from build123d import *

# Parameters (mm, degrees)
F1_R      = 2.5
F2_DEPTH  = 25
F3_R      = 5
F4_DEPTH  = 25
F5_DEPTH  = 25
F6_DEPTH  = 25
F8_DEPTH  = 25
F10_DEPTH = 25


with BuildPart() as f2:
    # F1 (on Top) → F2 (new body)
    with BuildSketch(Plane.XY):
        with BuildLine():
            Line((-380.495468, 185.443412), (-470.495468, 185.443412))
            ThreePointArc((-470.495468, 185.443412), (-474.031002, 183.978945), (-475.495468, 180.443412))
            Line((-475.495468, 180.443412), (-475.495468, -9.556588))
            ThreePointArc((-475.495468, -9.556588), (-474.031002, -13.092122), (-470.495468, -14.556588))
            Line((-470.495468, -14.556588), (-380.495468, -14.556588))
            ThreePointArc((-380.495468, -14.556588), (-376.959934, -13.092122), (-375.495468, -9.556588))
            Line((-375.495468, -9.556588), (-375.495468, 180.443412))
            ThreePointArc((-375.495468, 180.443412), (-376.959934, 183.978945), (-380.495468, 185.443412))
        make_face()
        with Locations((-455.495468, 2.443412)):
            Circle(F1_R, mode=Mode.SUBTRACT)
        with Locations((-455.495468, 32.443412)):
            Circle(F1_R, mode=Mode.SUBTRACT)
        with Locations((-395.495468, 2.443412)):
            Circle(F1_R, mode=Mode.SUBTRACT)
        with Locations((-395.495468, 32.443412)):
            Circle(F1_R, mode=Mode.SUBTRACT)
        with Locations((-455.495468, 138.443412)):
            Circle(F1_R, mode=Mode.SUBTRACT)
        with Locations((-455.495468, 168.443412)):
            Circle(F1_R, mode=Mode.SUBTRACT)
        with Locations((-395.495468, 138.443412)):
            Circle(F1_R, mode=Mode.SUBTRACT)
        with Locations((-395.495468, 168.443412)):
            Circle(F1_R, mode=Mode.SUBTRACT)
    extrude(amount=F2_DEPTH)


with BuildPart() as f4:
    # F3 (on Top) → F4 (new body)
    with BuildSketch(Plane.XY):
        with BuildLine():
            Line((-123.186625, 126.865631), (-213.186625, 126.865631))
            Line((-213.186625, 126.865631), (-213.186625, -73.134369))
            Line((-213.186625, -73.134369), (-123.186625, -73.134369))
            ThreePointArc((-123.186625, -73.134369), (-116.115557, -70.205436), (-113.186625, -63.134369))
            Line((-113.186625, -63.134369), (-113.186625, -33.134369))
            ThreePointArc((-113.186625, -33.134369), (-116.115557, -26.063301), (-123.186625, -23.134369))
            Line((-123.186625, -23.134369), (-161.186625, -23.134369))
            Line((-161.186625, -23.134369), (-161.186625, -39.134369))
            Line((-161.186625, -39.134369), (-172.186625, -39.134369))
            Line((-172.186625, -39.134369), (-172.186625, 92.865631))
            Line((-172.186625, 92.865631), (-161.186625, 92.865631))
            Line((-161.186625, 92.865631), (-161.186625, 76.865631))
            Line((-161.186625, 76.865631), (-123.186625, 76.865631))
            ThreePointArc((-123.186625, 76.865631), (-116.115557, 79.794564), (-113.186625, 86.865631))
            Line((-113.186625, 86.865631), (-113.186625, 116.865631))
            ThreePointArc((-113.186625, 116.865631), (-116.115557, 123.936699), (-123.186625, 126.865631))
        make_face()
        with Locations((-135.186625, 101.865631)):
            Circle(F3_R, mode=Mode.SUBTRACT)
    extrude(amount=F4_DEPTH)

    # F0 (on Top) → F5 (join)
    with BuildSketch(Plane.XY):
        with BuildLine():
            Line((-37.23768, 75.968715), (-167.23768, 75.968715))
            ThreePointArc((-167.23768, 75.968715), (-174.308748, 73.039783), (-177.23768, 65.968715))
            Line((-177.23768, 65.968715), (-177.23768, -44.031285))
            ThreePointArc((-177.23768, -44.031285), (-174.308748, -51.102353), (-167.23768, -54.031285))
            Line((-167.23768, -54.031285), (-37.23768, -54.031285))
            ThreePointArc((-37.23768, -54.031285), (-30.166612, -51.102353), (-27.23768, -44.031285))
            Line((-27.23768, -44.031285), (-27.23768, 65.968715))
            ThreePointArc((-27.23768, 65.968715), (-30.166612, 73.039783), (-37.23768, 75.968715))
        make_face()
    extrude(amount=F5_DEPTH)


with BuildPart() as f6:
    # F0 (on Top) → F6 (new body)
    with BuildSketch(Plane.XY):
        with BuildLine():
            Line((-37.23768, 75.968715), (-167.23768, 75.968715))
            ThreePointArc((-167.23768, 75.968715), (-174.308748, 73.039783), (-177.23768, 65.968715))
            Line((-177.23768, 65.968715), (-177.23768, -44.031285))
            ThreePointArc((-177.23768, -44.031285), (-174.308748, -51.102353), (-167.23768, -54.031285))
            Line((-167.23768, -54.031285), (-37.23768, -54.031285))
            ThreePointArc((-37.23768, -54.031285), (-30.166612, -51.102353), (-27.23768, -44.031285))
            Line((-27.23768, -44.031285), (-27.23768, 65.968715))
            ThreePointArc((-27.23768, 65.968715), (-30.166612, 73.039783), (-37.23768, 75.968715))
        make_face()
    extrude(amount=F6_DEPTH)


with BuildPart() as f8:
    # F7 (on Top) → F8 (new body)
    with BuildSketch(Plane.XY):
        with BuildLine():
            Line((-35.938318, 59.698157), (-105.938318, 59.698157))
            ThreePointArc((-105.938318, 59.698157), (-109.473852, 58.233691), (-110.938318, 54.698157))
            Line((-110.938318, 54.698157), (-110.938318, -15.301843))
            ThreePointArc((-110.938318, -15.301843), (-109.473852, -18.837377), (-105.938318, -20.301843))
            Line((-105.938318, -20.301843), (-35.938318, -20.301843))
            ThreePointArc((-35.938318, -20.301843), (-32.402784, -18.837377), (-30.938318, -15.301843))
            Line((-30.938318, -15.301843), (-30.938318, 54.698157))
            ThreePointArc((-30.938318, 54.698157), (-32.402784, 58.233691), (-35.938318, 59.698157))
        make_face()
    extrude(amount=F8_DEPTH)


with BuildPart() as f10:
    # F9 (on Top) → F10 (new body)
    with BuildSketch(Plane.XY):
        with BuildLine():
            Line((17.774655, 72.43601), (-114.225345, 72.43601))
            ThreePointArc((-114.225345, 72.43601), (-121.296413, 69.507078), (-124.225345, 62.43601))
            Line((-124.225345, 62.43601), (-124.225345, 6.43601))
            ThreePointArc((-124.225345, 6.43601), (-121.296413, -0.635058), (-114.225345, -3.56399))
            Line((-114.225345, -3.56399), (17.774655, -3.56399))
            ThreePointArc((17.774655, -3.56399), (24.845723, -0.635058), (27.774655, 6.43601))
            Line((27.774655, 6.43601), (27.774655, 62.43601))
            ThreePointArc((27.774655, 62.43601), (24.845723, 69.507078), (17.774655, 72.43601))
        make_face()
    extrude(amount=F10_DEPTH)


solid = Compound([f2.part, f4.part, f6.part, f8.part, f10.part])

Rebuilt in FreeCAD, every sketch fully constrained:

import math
import FreeCAD as App
import Part
import Sketcher
from FreeCAD import Vector

doc = App.newDocument("Part")
params = doc.addObject("Spreadsheet::Sheet", "Params")
for row, (alias, value) in enumerate([
    ("sketch1_diameter", "5 mm"),
    ("sketch1_radius", "5.000001 mm"),
    ("sketch1_width", "90 mm"),
    ("sketch1_height", "190 mm"),
    ("pad1_length", "25 mm"),
    ("sketch2_diameter", "10 mm"),
    ("sketch2_radius", "10.000001 mm"),
    ("sketch2_width", "90 mm"),
    ("sketch2_width2", "38 mm"),
    ("sketch2_width3", "11 mm"),
    ("pad2_length", "25 mm"),
    ("sketch3_radius", "9.999999 mm"),
    ("sketch3_width", "130 mm"),
    ("sketch3_height", "110 mm"),
    ("pad3_length", "25 mm"),
    ("sketch4_radius", "9.999999 mm"),
    ("sketch4_width", "130 mm"),
    ("sketch4_height", "110 mm"),
    ("pad4_length", "25 mm"),
    ("sketch5_radius", "5 mm"),
    ("sketch5_width", "70 mm"),
    ("pad5_length", "25 mm"),
    ("sketch6_radius", "9.999999 mm"),
    ("sketch6_width", "132 mm"),
    ("sketch6_height", "56 mm"),
    ("pad6_length", "25 mm"),
], start=1):
    params.set(f"A{row}", alias)
    params.set(f"B{row}", "=" + value)
    params.setAlias(f"B{row}", alias)

body = doc.addObject("PartDesign::Body", "Body")

sketch1 = body.newObject("Sketcher::SketchObject", "Sketch")
sketch1.AttachmentSupport = (doc.getObject("XY_Plane"), [""])
sketch1.MapMode = "FlatFace"
sketch1.addGeometry([
    Part.LineSegment(Vector(-380.5, 185.4, 0), Vector(-470.5, 185.4, 0)),
    Part.ArcOfCircle(Part.Circle(Vector(-470.5, 180.4, 0), Vector(0, 0, 1), 5), math.radians(90), math.radians(180)),
    Part.LineSegment(Vector(-475.5, 180.4, 0), Vector(-475.5, -9.6, 0)),
    Part.ArcOfCircle(Part.Circle(Vector(-470.5, -9.6, 0), Vector(0, 0, 1), 5), math.radians(180), math.radians(270)),
    Part.LineSegment(Vector(-470.5, -14.6, 0), Vector(-380.5, -14.6, 0)),
    Part.ArcOfCircle(Part.Circle(Vector(-380.5, -9.6, 0), Vector(0, 0, 1), 5), math.radians(-90), math.radians(0)),
    Part.LineSegment(Vector(-375.5, -9.6, 0), Vector(-375.5, 180.4, 0)),
    Part.ArcOfCircle(Part.Circle(Vector(-380.5, 180.4, 0), Vector(0, 0, 1), 5), math.radians(0), math.radians(90)),
    Part.Circle(Vector(-455.5, 2.4, 0), Vector(0, 0, 1), 2.5),
    Part.Circle(Vector(-455.5, 32.4, 0), Vector(0, 0, 1), 2.5),
    Part.Circle(Vector(-395.5, 2.4, 0), Vector(0, 0, 1), 2.5),
    Part.Circle(Vector(-395.5, 32.4, 0), Vector(0, 0, 1), 2.5),
    Part.Circle(Vector(-455.5, 138.4, 0), Vector(0, 0, 1), 2.5),
    Part.Circle(Vector(-455.5, 168.4, 0), Vector(0, 0, 1), 2.5),
    Part.Circle(Vector(-395.5, 138.4, 0), Vector(0, 0, 1), 2.5),
    Part.Circle(Vector(-395.5, 168.4, 0), Vector(0, 0, 1), 2.5),
], False)
sketch1.addConstraint([
    Sketcher.Constraint("Tangent", 0, 2, 1, 1),
    Sketcher.Constraint("Tangent", 1, 2, 2, 1),
    Sketcher.Constraint("Tangent", 2, 2, 3, 1),
    Sketcher.Constraint("Tangent", 3, 2, 4, 1),
    Sketcher.Constraint("Tangent", 4, 2, 5, 1),
    Sketcher.Constraint("Tangent", 5, 2, 6, 1),
    Sketcher.Constraint("Tangent", 6, 2, 7, 1),
    Sketcher.Constraint("Tangent", 7, 2, 0, 1),
    Sketcher.Constraint("Horizontal", 0),
    Sketcher.Constraint("Vertical", 2),
    Sketcher.Constraint("Horizontal", 4),
    Sketcher.Constraint("Vertical", 6),
    Sketcher.Constraint("Equal", 1, 3),
    Sketcher.Constraint("Equal", 3, 5),
    Sketcher.Constraint("Equal", 5, 7),
    Sketcher.Constraint("Equal", 8, 9),
    Sketcher.Constraint("Equal", 9, 10),
    Sketcher.Constraint("Equal", 10, 11),
    Sketcher.Constraint("Equal", 11, 12),
    Sketcher.Constraint("Equal", 12, 13),
    Sketcher.Constraint("Equal", 13, 14),
    Sketcher.Constraint("Equal", 14, 15),
    Sketcher.Constraint("Horizontal", 8, 3, 10, 3),
    Sketcher.Constraint("Horizontal", 9, 3, 11, 3),
    Sketcher.Constraint("Horizontal", 12, 3, 14, 3),
    Sketcher.Constraint("Horizontal", 13, 3, 15, 3),
    Sketcher.Constraint("Vertical", 8, 3, 9, 3),
    Sketcher.Constraint("Vertical", 10, 3, 11, 3),
    Sketcher.Constraint("Vertical", 9, 3, 12, 3),
    Sketcher.Constraint("Vertical", 12, 3, 13, 3),
    Sketcher.Constraint("Vertical", 11, 3, 14, 3),
    Sketcher.Constraint("Vertical", 14, 3, 15, 3),
    Sketcher.Constraint("Diameter", 8, 5.0),
    Sketcher.Constraint("Radius", 1, 5.000001),
    Sketcher.Constraint("DistanceX", 0, 2, 0, 1, 90.0),
    Sketcher.Constraint("DistanceY", 2, 2, 2, 1, 190.0),
    Sketcher.Constraint("DistanceX", 3, 3, 8, 3, 15.0),
    Sketcher.Constraint("DistanceY", 3, 3, 8, 3, 12.0),
    Sketcher.Constraint("DistanceY", 8, 3, 9, 3, 30.0),
    Sketcher.Constraint("DistanceX", 10, 3, 5, 3, 15.0),
    Sketcher.Constraint("DistanceY", 12, 3, 1, 3, 41.999999),
    Sketcher.Constraint("DistanceY", 13, 3, 1, 3, 11.999999),
    Sketcher.Constraint("DistanceY", -1, 1, 1, 3, 180.443411),
    Sketcher.Constraint("DistanceX", 3, 3, -1, 1, 470.495468),
])
sketch1.setExpression("Constraints[32]", "Params.sketch1_diameter")
sketch1.setExpression("Constraints[33]", "Params.sketch1_radius")
sketch1.setExpression("Constraints[34]", "Params.sketch1_width")
sketch1.setExpression("Constraints[35]", "Params.sketch1_height")
pad1 = body.newObject("PartDesign::Pad", "Pad")
pad1.Profile = sketch1
pad1.setExpression("Length", "Params.pad1_length")
body2 = doc.addObject("PartDesign::Body", "Body001")

sketch2 = body2.newObject("Sketcher::SketchObject", "Sketch001")
sketch2.AttachmentSupport = (doc.getObject("XY_Plane001"), [""])
sketch2.MapMode = "FlatFace"
sketch2.addGeometry([
    Part.LineSegment(Vector(-123, 127, 0), Vector(-213, 127, 0)),
    Part.LineSegment(Vector(-213, 127, 0), Vector(-213, -73, 0)),
    Part.LineSegment(Vector(-213, -73, 0), Vector(-123, -73, 0)),
    Part.ArcOfCircle(Part.Circle(Vector(-123, -63, 0), Vector(0, 0, 1), 10), math.radians(-90), math.radians(0)),
    Part.LineSegment(Vector(-113, -63, 0), Vector(-113, -33, 0)),
    Part.ArcOfCircle(Part.Circle(Vector(-123, -33, 0), Vector(0, 0, 1), 10), math.radians(0), math.radians(90)),
    Part.LineSegment(Vector(-123, -23, 0), Vector(-161, -23, 0)),
    Part.LineSegment(Vector(-161, -23, 0), Vector(-161, -39, 0)),
    Part.LineSegment(Vector(-161, -39, 0), Vector(-172, -39, 0)),
    Part.LineSegment(Vector(-172, -39, 0), Vector(-172, 93, 0)),
    Part.LineSegment(Vector(-172, 93, 0), Vector(-161, 93, 0)),
    Part.LineSegment(Vector(-161, 93, 0), Vector(-161, 77, 0)),
    Part.LineSegment(Vector(-161, 77, 0), Vector(-123, 77, 0)),
    Part.ArcOfCircle(Part.Circle(Vector(-123, 87, 0), Vector(0, 0, 1), 10), math.radians(-90), math.radians(0)),
    Part.LineSegment(Vector(-113, 87, 0), Vector(-113, 117, 0)),
    Part.ArcOfCircle(Part.Circle(Vector(-123, 117, 0), Vector(0, 0, 1), 10), math.radians(0), math.radians(90)),
    Part.Circle(Vector(-135, 102, 0), Vector(0, 0, 1), 5),
], False)
sketch2.addConstraint([
    Sketcher.Constraint("Coincident", 0, 2, 1, 1),
    Sketcher.Constraint("Coincident", 1, 2, 2, 1),
    Sketcher.Constraint("Tangent", 2, 2, 3, 1),
    Sketcher.Constraint("Tangent", 3, 2, 4, 1),
    Sketcher.Constraint("Tangent", 4, 2, 5, 1),
    Sketcher.Constraint("Tangent", 5, 2, 6, 1),
    Sketcher.Constraint("Coincident", 6, 2, 7, 1),
    Sketcher.Constraint("Coincident", 7, 2, 8, 1),
    Sketcher.Constraint("Coincident", 8, 2, 9, 1),
    Sketcher.Constraint("Coincident", 9, 2, 10, 1),
    Sketcher.Constraint("Coincident", 10, 2, 11, 1),
    Sketcher.Constraint("Coincident", 11, 2, 12, 1),
    Sketcher.Constraint("Tangent", 12, 2, 13, 1),
    Sketcher.Constraint("Tangent", 13, 2, 14, 1),
    Sketcher.Constraint("Tangent", 14, 2, 15, 1),
    Sketcher.Constraint("Tangent", 15, 2, 0, 1),
    Sketcher.Constraint("Horizontal", 0),
    Sketcher.Constraint("Vertical", 1),
    Sketcher.Constraint("Horizontal", 2),
    Sketcher.Constraint("Vertical", 4),
    Sketcher.Constraint("Horizontal", 6),
    Sketcher.Constraint("Vertical", 7),
    Sketcher.Constraint("Horizontal", 8),
    Sketcher.Constraint("Vertical", 9),
    Sketcher.Constraint("Horizontal", 10),
    Sketcher.Constraint("Vertical", 11),
    Sketcher.Constraint("Horizontal", 12),
    Sketcher.Constraint("Vertical", 14),
    Sketcher.Constraint("Equal", 3, 5),
    Sketcher.Constraint("Equal", 5, 13),
    Sketcher.Constraint("Equal", 13, 15),
    Sketcher.Constraint("Vertical", 5, 3, 13, 3),
    Sketcher.Constraint("Vertical", 7, 2, 10, 2),
    Sketcher.Constraint("Equal", 7, 11),
    Sketcher.Constraint("Equal", 4, 14),
    Sketcher.Constraint("Diameter", 16, 10.0),
    Sketcher.Constraint("Radius", 3, 10.000001),
    Sketcher.Constraint("DistanceX", 0, 2, 0, 1, 90.0),
    Sketcher.Constraint("DistanceX", 6, 2, 6, 1, 38.0),
    Sketcher.Constraint("DistanceX", 8, 2, 8, 1, 11.0),
    Sketcher.Constraint("DistanceY", 1, 2, 1, 1, 200.0),
    Sketcher.Constraint("DistanceY", 4, 1, 4, 2, 30.0),
    Sketcher.Constraint("DistanceY", 7, 2, 7, 1, 16.0),
    Sketcher.Constraint("DistanceX", 16, 3, 13, 3, 11.999999),
    Sketcher.Constraint("DistanceY", 13, 3, 16, 3, 14.999999),
    Sketcher.Constraint("DistanceY", 5, 3, -1, 1, 33.134368),
    Sketcher.Constraint("DistanceX", 3, 3, -1, 1, 123.186626),
])
sketch2.setExpression("Constraints[35]", "Params.sketch2_diameter")
sketch2.setExpression("Constraints[36]", "Params.sketch2_radius")
sketch2.setExpression("Constraints[37]", "Params.sketch2_width")
sketch2.setExpression("Constraints[38]", "Params.sketch2_width2")
sketch2.setExpression("Constraints[39]", "Params.sketch2_width3")
pad2 = body2.newObject("PartDesign::Pad", "Pad001")
pad2.Profile = sketch2
pad2.setExpression("Length", "Params.pad2_length")

sketch3 = body2.newObject("Sketcher::SketchObject", "Sketch002")
sketch3.AttachmentSupport = (doc.getObject("XY_Plane001"), [""])
sketch3.MapMode = "FlatFace"
sketch3.addGeometry([
    Part.LineSegment(Vector(-37, 76, 0), Vector(-167, 76, 0)),
    Part.ArcOfCircle(Part.Circle(Vector(-167, 66, 0), Vector(0, 0, 1), 10), math.radians(90), math.radians(180)),
    Part.LineSegment(Vector(-177, 66, 0), Vector(-177, -44, 0)),
    Part.ArcOfCircle(Part.Circle(Vector(-167, -44, 0), Vector(0, 0, 1), 10), math.radians(180), math.radians(270)),
    Part.LineSegment(Vector(-167, -54, 0), Vector(-37, -54, 0)),
    Part.ArcOfCircle(Part.Circle(Vector(-37, -44, 0), Vector(0, 0, 1), 10), math.radians(-90), math.radians(0)),
    Part.LineSegment(Vector(-27, -44, 0), Vector(-27, 66, 0)),
    Part.ArcOfCircle(Part.Circle(Vector(-37, 66, 0), Vector(0, 0, 1), 10), math.radians(0), math.radians(90)),
], False)
sketch3.addConstraint([
    Sketcher.Constraint("Tangent", 0, 2, 1, 1),
    Sketcher.Constraint("Tangent", 1, 2, 2, 1),
    Sketcher.Constraint("Tangent", 2, 2, 3, 1),
    Sketcher.Constraint("Tangent", 3, 2, 4, 1),
    Sketcher.Constraint("Tangent", 4, 2, 5, 1),
    Sketcher.Constraint("Tangent", 5, 2, 6, 1),
    Sketcher.Constraint("Tangent", 6, 2, 7, 1),
    Sketcher.Constraint("Tangent", 7, 2, 0, 1),
    Sketcher.Constraint("Horizontal", 0),
    Sketcher.Constraint("Vertical", 2),
    Sketcher.Constraint("Horizontal", 4),
    Sketcher.Constraint("Vertical", 6),
    Sketcher.Constraint("Equal", 1, 3),
    Sketcher.Constraint("Equal", 3, 5),
    Sketcher.Constraint("Equal", 5, 7),
    Sketcher.Constraint("Radius", 1, 9.999999),
    Sketcher.Constraint("DistanceX", 0, 2, 0, 1, 130.0),
    Sketcher.Constraint("DistanceY", 2, 2, 2, 1, 110.0),
    Sketcher.Constraint("DistanceX", 1, 3, -1, 1, 167.237681),
    Sketcher.Constraint("DistanceY", -1, 1, 1, 3, 65.968716),
])
sketch3.setExpression("Constraints[15]", "Params.sketch3_radius")
sketch3.setExpression("Constraints[16]", "Params.sketch3_width")
sketch3.setExpression("Constraints[17]", "Params.sketch3_height")
pad3 = body2.newObject("PartDesign::Pad", "Pad002")
pad3.Profile = sketch3
pad3.setExpression("Length", "Params.pad3_length")
body3 = doc.addObject("PartDesign::Body", "Body002")

sketch4 = body3.newObject("Sketcher::SketchObject", "Sketch003")
sketch4.AttachmentSupport = (doc.getObject("XY_Plane002"), [""])
sketch4.MapMode = "FlatFace"
sketch4.addGeometry([
    Part.LineSegment(Vector(-37, 76, 0), Vector(-167, 76, 0)),
    Part.ArcOfCircle(Part.Circle(Vector(-167, 66, 0), Vector(0, 0, 1), 10), math.radians(90), math.radians(180)),
    Part.LineSegment(Vector(-177, 66, 0), Vector(-177, -44, 0)),
    Part.ArcOfCircle(Part.Circle(Vector(-167, -44, 0), Vector(0, 0, 1), 10), math.radians(180), math.radians(270)),
    Part.LineSegment(Vector(-167, -54, 0), Vector(-37, -54, 0)),
    Part.ArcOfCircle(Part.Circle(Vector(-37, -44, 0), Vector(0, 0, 1), 10), math.radians(-90), math.radians(0)),
    Part.LineSegment(Vector(-27, -44, 0), Vector(-27, 66, 0)),
    Part.ArcOfCircle(Part.Circle(Vector(-37, 66, 0), Vector(0, 0, 1), 10), math.radians(0), math.radians(90)),
], False)
sketch4.addConstraint([
    Sketcher.Constraint("Tangent", 0, 2, 1, 1),
    Sketcher.Constraint("Tangent", 1, 2, 2, 1),
    Sketcher.Constraint("Tangent", 2, 2, 3, 1),
    Sketcher.Constraint("Tangent", 3, 2, 4, 1),
    Sketcher.Constraint("Tangent", 4, 2, 5, 1),
    Sketcher.Constraint("Tangent", 5, 2, 6, 1),
    Sketcher.Constraint("Tangent", 6, 2, 7, 1),
    Sketcher.Constraint("Tangent", 7, 2, 0, 1),
    Sketcher.Constraint("Horizontal", 0),
    Sketcher.Constraint("Vertical", 2),
    Sketcher.Constraint("Horizontal", 4),
    Sketcher.Constraint("Vertical", 6),
    Sketcher.Constraint("Equal", 1, 3),
    Sketcher.Constraint("Equal", 3, 5),
    Sketcher.Constraint("Equal", 5, 7),
    Sketcher.Constraint("Radius", 1, 9.999999),
    Sketcher.Constraint("DistanceX", 0, 2, 0, 1, 130.0),
    Sketcher.Constraint("DistanceY", 2, 2, 2, 1, 110.0),
    Sketcher.Constraint("DistanceX", 1, 3, -1, 1, 167.237681),
    Sketcher.Constraint("DistanceY", -1, 1, 1, 3, 65.968716),
])
sketch4.setExpression("Constraints[15]", "Params.sketch4_radius")
sketch4.setExpression("Constraints[16]", "Params.sketch4_width")
sketch4.setExpression("Constraints[17]", "Params.sketch4_height")
pad4 = body3.newObject("PartDesign::Pad", "Pad003")
pad4.Profile = sketch4
pad4.setExpression("Length", "Params.pad4_length")
body4 = doc.addObject("PartDesign::Body", "Body003")

sketch5 = body4.newObject("Sketcher::SketchObject", "Sketch004")
sketch5.AttachmentSupport = (doc.getObject("XY_Plane003"), [""])
sketch5.MapMode = "FlatFace"
sketch5.addGeometry([
    Part.LineSegment(Vector(-35.9, 59.7, 0), Vector(-105.9, 59.7, 0)),
    Part.ArcOfCircle(Part.Circle(Vector(-105.9, 54.7, 0), Vector(0, 0, 1), 5), math.radians(90), math.radians(180)),
    Part.LineSegment(Vector(-110.9, 54.7, 0), Vector(-110.9, -15.3, 0)),
    Part.ArcOfCircle(Part.Circle(Vector(-105.9, -15.3, 0), Vector(0, 0, 1), 5), math.radians(180), math.radians(270)),
    Part.LineSegment(Vector(-105.9, -20.3, 0), Vector(-35.9, -20.3, 0)),
    Part.ArcOfCircle(Part.Circle(Vector(-35.9, -15.3, 0), Vector(0, 0, 1), 5), math.radians(-90), math.radians(0)),
    Part.LineSegment(Vector(-30.9, -15.3, 0), Vector(-30.9, 54.7, 0)),
    Part.ArcOfCircle(Part.Circle(Vector(-35.9, 54.7, 0), Vector(0, 0, 1), 5), math.radians(0), math.radians(90)),
], False)
sketch5.addConstraint([
    Sketcher.Constraint("Tangent", 0, 2, 1, 1),
    Sketcher.Constraint("Tangent", 1, 2, 2, 1),
    Sketcher.Constraint("Tangent", 2, 2, 3, 1),
    Sketcher.Constraint("Tangent", 3, 2, 4, 1),
    Sketcher.Constraint("Tangent", 4, 2, 5, 1),
    Sketcher.Constraint("Tangent", 5, 2, 6, 1),
    Sketcher.Constraint("Tangent", 6, 2, 7, 1),
    Sketcher.Constraint("Tangent", 7, 2, 0, 1),
    Sketcher.Constraint("Horizontal", 0),
    Sketcher.Constraint("Vertical", 2),
    Sketcher.Constraint("Horizontal", 4),
    Sketcher.Constraint("Vertical", 6),
    Sketcher.Constraint("Equal", 1, 3),
    Sketcher.Constraint("Equal", 3, 5),
    Sketcher.Constraint("Equal", 5, 7),
    Sketcher.Constraint("Equal", 4, 2),
    Sketcher.Constraint("Radius", 1, 5.0),
    Sketcher.Constraint("DistanceX", 0, 2, 0, 1, 70.0),
    Sketcher.Constraint("DistanceX", 1, 3, -1, 1, 105.938318),
    Sketcher.Constraint("DistanceY", -1, 1, 1, 3, 54.698157),
])
sketch5.setExpression("Constraints[16]", "Params.sketch5_radius")
sketch5.setExpression("Constraints[17]", "Params.sketch5_width")
pad5 = body4.newObject("PartDesign::Pad", "Pad004")
pad5.Profile = sketch5
pad5.setExpression("Length", "Params.pad5_length")
body5 = doc.addObject("PartDesign::Body", "Body004")

sketch6 = body5.newObject("Sketcher::SketchObject", "Sketch005")
sketch6.AttachmentSupport = (doc.getObject("XY_Plane004"), [""])
sketch6.MapMode = "FlatFace"
sketch6.addGeometry([
    Part.LineSegment(Vector(18, 72, 0), Vector(-114, 72, 0)),
    Part.ArcOfCircle(Part.Circle(Vector(-114, 62, 0), Vector(0, 0, 1), 10), math.radians(90), math.radians(180)),
    Part.LineSegment(Vector(-124, 62, 0), Vector(-124, 6, 0)),
    Part.ArcOfCircle(Part.Circle(Vector(-114, 6, 0), Vector(0, 0, 1), 10), math.radians(180), math.radians(270)),
    Part.LineSegment(Vector(-114, -4, 0), Vector(18, -4, 0)),
    Part.ArcOfCircle(Part.Circle(Vector(18, 6, 0), Vector(0, 0, 1), 10), math.radians(-90), math.radians(0)),
    Part.LineSegment(Vector(28, 6, 0), Vector(28, 62, 0)),
    Part.ArcOfCircle(Part.Circle(Vector(18, 62, 0), Vector(0, 0, 1), 10), math.radians(0), math.radians(90)),
], False)
sketch6.addConstraint([
    Sketcher.Constraint("Tangent", 0, 2, 1, 1),
    Sketcher.Constraint("Tangent", 1, 2, 2, 1),
    Sketcher.Constraint("Tangent", 2, 2, 3, 1),
    Sketcher.Constraint("Tangent", 3, 2, 4, 1),
    Sketcher.Constraint("Tangent", 4, 2, 5, 1),
    Sketcher.Constraint("Tangent", 5, 2, 6, 1),
    Sketcher.Constraint("Tangent", 6, 2, 7, 1),
    Sketcher.Constraint("Tangent", 7, 2, 0, 1),
    Sketcher.Constraint("Horizontal", 0),
    Sketcher.Constraint("Vertical", 2),
    Sketcher.Constraint("Horizontal", 4),
    Sketcher.Constraint("Vertical", 6),
    Sketcher.Constraint("Equal", 1, 3),
    Sketcher.Constraint("Equal", 3, 5),
    Sketcher.Constraint("Equal", 5, 7),
    Sketcher.Constraint("Radius", 1, 9.999999),
    Sketcher.Constraint("DistanceX", 0, 2, 0, 1, 132.0),
    Sketcher.Constraint("DistanceY", 2, 2, 2, 1, 56.0),
    Sketcher.Constraint("DistanceY", -1, 1, 1, 3, 62.436011),
    Sketcher.Constraint("DistanceX", 1, 3, -1, 1, 114.225346),
])
sketch6.setExpression("Constraints[15]", "Params.sketch6_radius")
sketch6.setExpression("Constraints[16]", "Params.sketch6_width")
sketch6.setExpression("Constraints[17]", "Params.sketch6_height")
pad6 = body5.newObject("PartDesign::Pad", "Pad005")
pad6.Profile = sketch6
pad6.setExpression("Length", "Params.pad6_length")

doc.recompute()
